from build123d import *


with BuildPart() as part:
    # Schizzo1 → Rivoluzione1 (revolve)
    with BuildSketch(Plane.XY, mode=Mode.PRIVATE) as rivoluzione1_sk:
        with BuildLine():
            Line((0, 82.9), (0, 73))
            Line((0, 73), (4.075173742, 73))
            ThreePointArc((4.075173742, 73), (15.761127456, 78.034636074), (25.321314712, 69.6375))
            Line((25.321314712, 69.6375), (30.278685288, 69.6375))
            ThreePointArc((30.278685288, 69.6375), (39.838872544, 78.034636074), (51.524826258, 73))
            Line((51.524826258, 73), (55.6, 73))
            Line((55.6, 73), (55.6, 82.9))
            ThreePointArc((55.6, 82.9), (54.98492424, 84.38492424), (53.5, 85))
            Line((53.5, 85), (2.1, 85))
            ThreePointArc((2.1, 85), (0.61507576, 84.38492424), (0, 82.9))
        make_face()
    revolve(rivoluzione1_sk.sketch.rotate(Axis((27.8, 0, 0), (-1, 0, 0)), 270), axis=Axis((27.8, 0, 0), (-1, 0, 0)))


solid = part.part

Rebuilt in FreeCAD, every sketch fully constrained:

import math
import FreeCAD as App
import Part
import Sketcher
Q = App.Units.Quantity

doc = App.newDocument("Part")
body = doc.addObject("PartDesign::Body", "Body")

# Sketch on XY plane
sketch1 = body.newObject("Sketcher::SketchObject", "Sketch")
sketch1.AttachmentSupport = (doc.getObject("XY_Plane"), [""])
sketch1.MapMode = "FlatFace"
sketch1.addGeometry([
    Part.LineSegment(App.Vector(0, 82.9, 0), App.Vector(0, 73, 0)),  # 0
    Part.LineSegment(App.Vector(0, 73, 0), App.Vector(4.1, 73, 0)),  # 1
    Part.ArcOfCircle(Part.Circle(App.Vector(13.9, 66.3, 0), App.Vector(0, 0, 1), 11.9), math.radians(16), math.radians(146)),  # 2
    Part.LineSegment(App.Vector(25.3, 69.6, 0), App.Vector(30.3, 69.6, 0)),  # 3
    Part.ArcOfCircle(Part.Circle(App.Vector(41.7, 66.3, 0), App.Vector(0, 0, 1), 11.9), math.radians(34), math.radians(164)),  # 4
    Part.LineSegment(App.Vector(51.5, 73, 0), App.Vector(55.6, 73, 0)),  # 5
    Part.LineSegment(App.Vector(55.6, 73, 0), App.Vector(55.6, 82.9, 0)),  # 6
    Part.ArcOfCircle(Part.Circle(App.Vector(53.5, 82.9, 0), App.Vector(0, 0, 1), 2.1), math.radians(0), math.radians(90)),  # 7
    Part.LineSegment(App.Vector(53.5, 85, 0), App.Vector(2.1, 85, 0)),  # 8
    Part.ArcOfCircle(Part.Circle(App.Vector(2.1, 82.9, 0), App.Vector(0, 0, 1), 2.1), math.radians(90), math.radians(180)),  # 9
], False)
sketch1.addConstraint([
    Sketcher.Constraint("Coincident", 0, 2, 1, 1),
    Sketcher.Constraint("Coincident", 1, 2, 2, 2),
    Sketcher.Constraint("Coincident", 2, 1, 3, 1),
    Sketcher.Constraint("Coincident", 3, 2, 4, 2),
    Sketcher.Constraint("Coincident", 4, 1, 5, 1),
    Sketcher.Constraint("Coincident", 5, 2, 6, 1),
    Sketcher.Constraint("Tangent", 6, 2, 7, 1),
    Sketcher.Constraint("Tangent", 7, 2, 8, 1),
    Sketcher.Constraint("Tangent", 8, 2, 9, 1),
    Sketcher.Constraint("Tangent", 9, 2, 0, 1),
    Sketcher.Constraint("Vertical", 0),
    Sketcher.Constraint("Horizontal", 1),
    Sketcher.Constraint("Horizontal", 3),
    Sketcher.Constraint("Horizontal", 5),
    Sketcher.Constraint("Vertical", 6),
    Sketcher.Constraint("Horizontal", 8),
    Sketcher.Constraint("Equal", 2, 4),
    Sketcher.Constraint("Equal", 7, 9),
    Sketcher.Constraint("PointOnObject", 0, 2, -2),
    Sketcher.Constraint("Horizontal", 2, 3, 4, 3),
    Sketcher.Constraint("Horizontal", 1, 2, 4, 1),
    Sketcher.Constraint("Equal", 1, 5),
    Sketcher.Constraint("Radius", 7, Q("2.1 mm")),
    Sketcher.Constraint("DistanceX", 8, 2, 8, 1, Q("51.4 mm")),
    Sketcher.Constraint("DistanceY", 0, 2, 0, 1, Q("9.9 mm")),
    Sketcher.Constraint("DistanceY", -1, 1, 0, 2, Q("73 mm")),
    Sketcher.Constraint("Radius", 2, Q("11.906 mm")),
    Sketcher.Constraint("DistanceX", -1, 1, 2, 3, Q("13.9 mm")),
    Sketcher.Constraint("DistanceY", -1, 1, 2, 3, Q("66.275 mm")),
    Sketcher.Constraint("DistanceX", 3, 1, 3, 2, Q("4.957371 mm")),
])
revolution = body.newObject("PartDesign::Revolution", "Revolution")
revolution.Profile = sketch1
revolution.ReferenceAxis = (sketch1, ["H_Axis"])
revolution.Angle = 360

doc.recompute()
